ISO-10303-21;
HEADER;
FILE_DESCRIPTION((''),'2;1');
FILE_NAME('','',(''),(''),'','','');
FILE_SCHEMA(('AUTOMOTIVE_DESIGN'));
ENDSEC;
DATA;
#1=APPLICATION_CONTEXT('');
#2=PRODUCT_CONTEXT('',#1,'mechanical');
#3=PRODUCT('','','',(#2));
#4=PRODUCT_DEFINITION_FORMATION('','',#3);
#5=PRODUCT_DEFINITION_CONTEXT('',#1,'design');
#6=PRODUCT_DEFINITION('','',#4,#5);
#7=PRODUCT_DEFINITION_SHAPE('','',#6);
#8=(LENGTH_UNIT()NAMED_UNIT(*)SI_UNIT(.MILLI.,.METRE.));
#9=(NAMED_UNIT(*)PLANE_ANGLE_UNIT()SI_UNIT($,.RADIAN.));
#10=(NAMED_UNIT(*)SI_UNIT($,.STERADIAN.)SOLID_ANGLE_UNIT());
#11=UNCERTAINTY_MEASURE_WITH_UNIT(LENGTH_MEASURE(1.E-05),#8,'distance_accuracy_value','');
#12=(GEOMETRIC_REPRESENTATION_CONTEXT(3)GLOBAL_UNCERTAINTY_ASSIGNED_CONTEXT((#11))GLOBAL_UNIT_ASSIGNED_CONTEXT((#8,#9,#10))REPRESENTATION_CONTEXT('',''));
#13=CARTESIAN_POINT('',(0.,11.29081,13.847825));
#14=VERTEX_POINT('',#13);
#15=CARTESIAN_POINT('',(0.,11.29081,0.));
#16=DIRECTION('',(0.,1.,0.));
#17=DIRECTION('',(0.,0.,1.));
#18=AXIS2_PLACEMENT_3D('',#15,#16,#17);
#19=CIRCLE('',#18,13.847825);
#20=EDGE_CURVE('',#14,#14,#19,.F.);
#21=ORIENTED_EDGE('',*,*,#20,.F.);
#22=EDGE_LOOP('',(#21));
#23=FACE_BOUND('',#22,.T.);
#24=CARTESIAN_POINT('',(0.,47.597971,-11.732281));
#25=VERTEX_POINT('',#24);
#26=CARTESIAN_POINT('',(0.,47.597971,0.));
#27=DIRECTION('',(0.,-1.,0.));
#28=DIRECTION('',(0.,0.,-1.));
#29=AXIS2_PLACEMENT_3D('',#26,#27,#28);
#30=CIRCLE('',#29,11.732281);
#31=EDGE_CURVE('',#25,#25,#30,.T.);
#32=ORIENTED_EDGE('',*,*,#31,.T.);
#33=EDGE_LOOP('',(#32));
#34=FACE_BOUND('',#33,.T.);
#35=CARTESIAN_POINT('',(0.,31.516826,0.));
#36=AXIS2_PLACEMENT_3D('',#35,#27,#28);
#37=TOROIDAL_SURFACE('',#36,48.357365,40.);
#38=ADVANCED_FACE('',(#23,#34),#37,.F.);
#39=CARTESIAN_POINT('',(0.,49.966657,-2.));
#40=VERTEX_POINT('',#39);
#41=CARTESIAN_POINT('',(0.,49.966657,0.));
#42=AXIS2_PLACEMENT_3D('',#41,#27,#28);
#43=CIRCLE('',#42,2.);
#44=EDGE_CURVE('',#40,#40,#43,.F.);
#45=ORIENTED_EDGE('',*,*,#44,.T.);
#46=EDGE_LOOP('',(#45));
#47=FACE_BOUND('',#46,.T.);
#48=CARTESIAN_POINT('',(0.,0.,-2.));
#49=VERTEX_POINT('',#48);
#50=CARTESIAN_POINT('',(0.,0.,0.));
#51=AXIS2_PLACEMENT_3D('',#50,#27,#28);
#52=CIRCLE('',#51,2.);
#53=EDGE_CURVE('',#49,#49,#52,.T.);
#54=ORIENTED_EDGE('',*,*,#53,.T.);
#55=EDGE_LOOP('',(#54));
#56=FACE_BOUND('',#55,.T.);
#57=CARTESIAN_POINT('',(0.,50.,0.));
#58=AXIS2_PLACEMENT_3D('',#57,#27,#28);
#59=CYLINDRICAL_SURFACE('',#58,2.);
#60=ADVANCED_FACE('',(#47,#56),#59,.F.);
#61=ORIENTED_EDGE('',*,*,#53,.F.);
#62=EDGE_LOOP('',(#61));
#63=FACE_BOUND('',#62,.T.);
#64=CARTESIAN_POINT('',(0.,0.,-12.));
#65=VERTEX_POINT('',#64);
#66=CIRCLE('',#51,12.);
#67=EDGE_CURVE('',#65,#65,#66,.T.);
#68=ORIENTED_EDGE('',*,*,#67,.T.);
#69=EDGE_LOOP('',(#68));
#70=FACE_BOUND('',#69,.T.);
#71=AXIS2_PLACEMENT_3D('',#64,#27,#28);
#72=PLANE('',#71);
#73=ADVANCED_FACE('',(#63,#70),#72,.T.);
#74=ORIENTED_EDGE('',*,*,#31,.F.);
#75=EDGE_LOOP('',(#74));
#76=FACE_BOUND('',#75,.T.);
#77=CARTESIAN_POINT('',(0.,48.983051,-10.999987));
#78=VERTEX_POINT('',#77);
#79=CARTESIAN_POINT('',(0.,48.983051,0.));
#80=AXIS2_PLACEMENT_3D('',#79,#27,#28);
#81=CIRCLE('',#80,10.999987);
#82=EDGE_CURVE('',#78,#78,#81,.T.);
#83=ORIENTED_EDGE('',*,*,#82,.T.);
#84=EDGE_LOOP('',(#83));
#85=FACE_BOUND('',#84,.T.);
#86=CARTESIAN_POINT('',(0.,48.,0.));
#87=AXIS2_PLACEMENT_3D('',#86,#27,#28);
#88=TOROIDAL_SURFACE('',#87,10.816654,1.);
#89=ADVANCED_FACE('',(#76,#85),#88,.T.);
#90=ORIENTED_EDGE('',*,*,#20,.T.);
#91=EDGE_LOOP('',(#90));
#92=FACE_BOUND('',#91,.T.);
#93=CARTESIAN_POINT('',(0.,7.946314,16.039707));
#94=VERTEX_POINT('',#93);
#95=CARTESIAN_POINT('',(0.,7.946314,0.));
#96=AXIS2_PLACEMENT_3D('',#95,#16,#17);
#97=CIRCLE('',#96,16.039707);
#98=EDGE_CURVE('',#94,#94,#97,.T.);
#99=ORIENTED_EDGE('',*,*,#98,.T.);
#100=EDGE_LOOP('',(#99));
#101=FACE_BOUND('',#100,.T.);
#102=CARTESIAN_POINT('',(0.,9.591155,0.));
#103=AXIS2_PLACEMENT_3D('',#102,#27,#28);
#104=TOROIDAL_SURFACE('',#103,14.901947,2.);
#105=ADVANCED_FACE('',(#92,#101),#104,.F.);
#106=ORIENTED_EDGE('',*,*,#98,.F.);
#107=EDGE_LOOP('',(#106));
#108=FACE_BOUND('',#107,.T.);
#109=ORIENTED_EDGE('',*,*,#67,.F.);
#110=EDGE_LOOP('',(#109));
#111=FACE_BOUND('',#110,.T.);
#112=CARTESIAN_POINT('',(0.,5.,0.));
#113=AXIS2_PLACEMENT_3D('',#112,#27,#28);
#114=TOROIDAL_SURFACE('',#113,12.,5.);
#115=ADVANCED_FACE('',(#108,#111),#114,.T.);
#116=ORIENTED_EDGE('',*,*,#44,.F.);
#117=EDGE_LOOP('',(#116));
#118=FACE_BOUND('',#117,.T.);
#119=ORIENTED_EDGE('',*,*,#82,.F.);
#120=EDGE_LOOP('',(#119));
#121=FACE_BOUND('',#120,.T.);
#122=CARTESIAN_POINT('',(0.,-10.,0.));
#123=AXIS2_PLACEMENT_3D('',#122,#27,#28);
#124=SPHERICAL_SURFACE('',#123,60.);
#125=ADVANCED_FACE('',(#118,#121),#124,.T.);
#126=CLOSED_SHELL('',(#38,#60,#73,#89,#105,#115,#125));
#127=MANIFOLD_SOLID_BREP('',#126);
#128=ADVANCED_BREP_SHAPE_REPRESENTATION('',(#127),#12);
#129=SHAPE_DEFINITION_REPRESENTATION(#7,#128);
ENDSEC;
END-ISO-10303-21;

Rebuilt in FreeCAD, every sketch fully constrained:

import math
import FreeCAD as App
import Part
import Sketcher

V = App.Vector
Q = App.Units.Quantity

doc = App.newDocument("Part")
params = doc.addObject("Spreadsheet::Sheet", "Params")
for row, (alias, value) in enumerate([
    ("sketch1_radius", "5 mm"),
    ("sketch1_radius2", "40 mm"),
    ("sketch1_radius3", "1 mm"),
    ("sketch1_radius4", "60 mm"),
    ("sketch1_width", "50 mm"),
    ("revolution_angle", "360 deg"),
    ("sketch2_diameter", "4 mm"),
    ("groove_angle", "360 deg"),
    ("sketch3_diameter", "4 mm"),
], start=1):
    params.set(f"A{row}", alias)
    params.set(f"B{row}", "=" + value)
    params.setAlias(f"B{row}", alias)

body = doc.addObject("PartDesign::Body", "Body")

# Sketch on YZ plane
sketch1 = body.newObject("Sketcher::SketchObject", "Sketch")
sketch1.AttachmentSupport = (doc.getObject("YZ_Plane"), [""])
sketch1.MapMode = "FlatFace"
sketch1.addGeometry([
    Part.LineSegment(V(50, 0, 0), V(0, 0, 0)),  # 0
    Part.LineSegment(V(0, 0, 0), V(0, -12, 0)),  # 1
    Part.ArcOfCircle(Part.Circle(V(5, -12, 0), V(0, 0, 1), 5), math.radians(180), math.radians(306)),  # 2
    Part.ArcOfCircle(Part.Circle(V(31.5, -48.4, 0), V(0, 0, 1), 40), math.radians(66), math.radians(126)),  # 3
    Part.ArcOfCircle(Part.Circle(V(48, -10.8, 0), V(0, 0, 1), 1), math.radians(-114), math.radians(-11)),  # 4
    Part.ArcOfCircle(Part.Circle(V(-10, 0, 0), V(0, 0, 1), 60), math.radians(-10.56), math.radians(0)),  # 5
], False)
sketch1.addConstraint([
    Sketcher.Constraint("Coincident", 0, 2, 1, 1),
    Sketcher.Constraint("Tangent", 1, 2, 2, 1),
    Sketcher.Constraint("Tangent", 2, 2, 3, 2),
    Sketcher.Constraint("Tangent", 3, 1, 4, 1),
    Sketcher.Constraint("Tangent", 4, 2, 5, 1),
    Sketcher.Constraint("Coincident", 5, 2, 0, 1),
    Sketcher.Constraint("Horizontal", 0),
    Sketcher.Constraint("Vertical", 1),
    Sketcher.Constraint("Coincident", 0, 2, -1, 1),
    Sketcher.Constraint("PointOnObject", 5, 3, -1),
    Sketcher.Constraint("Radius", 2, Q("5 mm")),
    Sketcher.Constraint("Radius", 3, Q("40 mm")),
    Sketcher.Constraint("Radius", 4, Q("1 mm")),
    Sketcher.Constraint("Radius", 5, Q("60 mm")),
    Sketcher.Constraint("DistanceX", 0, 2, 0, 1, Q("50 mm")),
    Sketcher.Constraint("DistanceY", 1, 2, 1, 1, Q("12 mm")),
    Sketcher.Constraint("DistanceX", -1, 1, 4, 3, Q("48 mm")),
])
sketch1.setExpression("Constraints[10]", "Params.sketch1_radius")
sketch1.setExpression("Constraints[11]", "Params.sketch1_radius2")
sketch1.setExpression("Constraints[12]", "Params.sketch1_radius3")
sketch1.setExpression("Constraints[13]", "Params.sketch1_radius4")
sketch1.setExpression("Constraints[14]", "Params.sketch1_width")
revolution = body.newObject("PartDesign::Revolution", "Revolution")
revolution.Profile = sketch1
revolution.ReferenceAxis = (sketch1, ["H_Axis"])
revolution.setExpression("Angle", "Params.revolution_angle")

# Sketch on YZ plane
sketch2 = body.newObject("Sketcher::SketchObject", "Sketch001")
sketch2.AttachmentSupport = (doc.getObject("YZ_Plane"), [""])
sketch2.MapMode = "FlatFace"
sketch2.addGeometry(Part.Circle(V(9.6, -14.9, 0), V(0, 0, 1), 2), False)
sketch2.addConstraint([
    Sketcher.Constraint("Diameter", 0, Q("4 mm")),
    Sketcher.Constraint("DistanceX", -1, 1, 0, 3, Q("9.591155 mm")),
    Sketcher.Constraint("DistanceY", 0, 3, -1, 1, Q("14.901947 mm")),
])
sketch2.setExpression("Constraints[0]", "Params.sketch2_diameter")
groove = body.newObject("PartDesign::Groove", "Groove")
groove.Profile = sketch2
groove.ReferenceAxis = (sketch2, ["H_Axis"])
groove.setExpression("Angle", "Params.groove_angle")

# Sketch on XZ plane
sketch3 = body.newObject("Sketcher::SketchObject", "Sketch002")
sketch3.AttachmentSupport = (doc.getObject("XZ_Plane"), [""])
sketch3.MapMode = "FlatFace"
sketch3.addGeometry(Part.Circle(V(0, 0, 0), V(0, 0, 1), 2), False)
sketch3.addConstraint([
    Sketcher.Constraint("Coincident", 0, 3, -1, 1),
    Sketcher.Constraint("Diameter", 0, Q("4 mm")),
])
sketch3.setExpression("Constraints[1]", "Params.sketch3_diameter")
pocket1 = body.newObject("PartDesign::Pocket", "Pocket")
pocket1.Profile = sketch3
pocket1.Type = "ThroughAll"

doc.recompute()
